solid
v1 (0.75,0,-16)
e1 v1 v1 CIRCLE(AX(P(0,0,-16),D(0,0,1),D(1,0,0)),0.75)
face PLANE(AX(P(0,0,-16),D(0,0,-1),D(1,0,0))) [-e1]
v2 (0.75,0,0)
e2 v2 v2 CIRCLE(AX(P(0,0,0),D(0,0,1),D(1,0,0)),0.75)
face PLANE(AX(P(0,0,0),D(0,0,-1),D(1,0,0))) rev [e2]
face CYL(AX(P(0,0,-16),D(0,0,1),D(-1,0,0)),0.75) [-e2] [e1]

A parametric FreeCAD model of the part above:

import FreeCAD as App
import Part
import Sketcher
from FreeCAD import Vector

doc = App.newDocument("Part")
params = doc.addObject("Spreadsheet::Sheet", "Params")
for row, (alias, value) in enumerate([
    ("sketch1_diameter", "1.5 mm"),
    ("pad1_length", "16 mm"),
], start=1):
    params.set(f"A{row}", alias)
    params.set(f"B{row}", "=" + value)
    params.setAlias(f"B{row}", alias)

body = doc.addObject("PartDesign::Body", "Body")

sketch1 = body.newObject("Sketcher::SketchObject", "Sketch")
sketch1.AttachmentSupport = (doc.getObject("XY_Plane"), [""])
sketch1.MapMode = "FlatFace"
sketch1.addGeometry(Part.Circle(Vector(0, 0, 0), Vector(0, 0, 1), 0.8), False)
sketch1.addConstraint(Sketcher.Constraint("Coincident", 0, 3, -1, 1))
sketch1.addConstraint(Sketcher.Constraint("Diameter", 0, 1.5))
sketch1.setExpression("Constraints[1]", "Params.sketch1_diameter")
pad1 = body.newObject("PartDesign::Pad", "Pad")
pad1.Profile = sketch1
pad1.setExpression("Length", "Params.pad1_length")
body2 = doc.addObject("PartDesign::Body", "Body001")
doc.recompute()

body.Placement = App.Placement(Vector(0, 0, -16), App.Rotation(Vector(0, 0, 1), 0))
boolean = body2.newObject("PartDesign::Boolean", "Boolean")
boolean.Type = "Fuse"
boolean.addObjects([body])

doc.recompute()
